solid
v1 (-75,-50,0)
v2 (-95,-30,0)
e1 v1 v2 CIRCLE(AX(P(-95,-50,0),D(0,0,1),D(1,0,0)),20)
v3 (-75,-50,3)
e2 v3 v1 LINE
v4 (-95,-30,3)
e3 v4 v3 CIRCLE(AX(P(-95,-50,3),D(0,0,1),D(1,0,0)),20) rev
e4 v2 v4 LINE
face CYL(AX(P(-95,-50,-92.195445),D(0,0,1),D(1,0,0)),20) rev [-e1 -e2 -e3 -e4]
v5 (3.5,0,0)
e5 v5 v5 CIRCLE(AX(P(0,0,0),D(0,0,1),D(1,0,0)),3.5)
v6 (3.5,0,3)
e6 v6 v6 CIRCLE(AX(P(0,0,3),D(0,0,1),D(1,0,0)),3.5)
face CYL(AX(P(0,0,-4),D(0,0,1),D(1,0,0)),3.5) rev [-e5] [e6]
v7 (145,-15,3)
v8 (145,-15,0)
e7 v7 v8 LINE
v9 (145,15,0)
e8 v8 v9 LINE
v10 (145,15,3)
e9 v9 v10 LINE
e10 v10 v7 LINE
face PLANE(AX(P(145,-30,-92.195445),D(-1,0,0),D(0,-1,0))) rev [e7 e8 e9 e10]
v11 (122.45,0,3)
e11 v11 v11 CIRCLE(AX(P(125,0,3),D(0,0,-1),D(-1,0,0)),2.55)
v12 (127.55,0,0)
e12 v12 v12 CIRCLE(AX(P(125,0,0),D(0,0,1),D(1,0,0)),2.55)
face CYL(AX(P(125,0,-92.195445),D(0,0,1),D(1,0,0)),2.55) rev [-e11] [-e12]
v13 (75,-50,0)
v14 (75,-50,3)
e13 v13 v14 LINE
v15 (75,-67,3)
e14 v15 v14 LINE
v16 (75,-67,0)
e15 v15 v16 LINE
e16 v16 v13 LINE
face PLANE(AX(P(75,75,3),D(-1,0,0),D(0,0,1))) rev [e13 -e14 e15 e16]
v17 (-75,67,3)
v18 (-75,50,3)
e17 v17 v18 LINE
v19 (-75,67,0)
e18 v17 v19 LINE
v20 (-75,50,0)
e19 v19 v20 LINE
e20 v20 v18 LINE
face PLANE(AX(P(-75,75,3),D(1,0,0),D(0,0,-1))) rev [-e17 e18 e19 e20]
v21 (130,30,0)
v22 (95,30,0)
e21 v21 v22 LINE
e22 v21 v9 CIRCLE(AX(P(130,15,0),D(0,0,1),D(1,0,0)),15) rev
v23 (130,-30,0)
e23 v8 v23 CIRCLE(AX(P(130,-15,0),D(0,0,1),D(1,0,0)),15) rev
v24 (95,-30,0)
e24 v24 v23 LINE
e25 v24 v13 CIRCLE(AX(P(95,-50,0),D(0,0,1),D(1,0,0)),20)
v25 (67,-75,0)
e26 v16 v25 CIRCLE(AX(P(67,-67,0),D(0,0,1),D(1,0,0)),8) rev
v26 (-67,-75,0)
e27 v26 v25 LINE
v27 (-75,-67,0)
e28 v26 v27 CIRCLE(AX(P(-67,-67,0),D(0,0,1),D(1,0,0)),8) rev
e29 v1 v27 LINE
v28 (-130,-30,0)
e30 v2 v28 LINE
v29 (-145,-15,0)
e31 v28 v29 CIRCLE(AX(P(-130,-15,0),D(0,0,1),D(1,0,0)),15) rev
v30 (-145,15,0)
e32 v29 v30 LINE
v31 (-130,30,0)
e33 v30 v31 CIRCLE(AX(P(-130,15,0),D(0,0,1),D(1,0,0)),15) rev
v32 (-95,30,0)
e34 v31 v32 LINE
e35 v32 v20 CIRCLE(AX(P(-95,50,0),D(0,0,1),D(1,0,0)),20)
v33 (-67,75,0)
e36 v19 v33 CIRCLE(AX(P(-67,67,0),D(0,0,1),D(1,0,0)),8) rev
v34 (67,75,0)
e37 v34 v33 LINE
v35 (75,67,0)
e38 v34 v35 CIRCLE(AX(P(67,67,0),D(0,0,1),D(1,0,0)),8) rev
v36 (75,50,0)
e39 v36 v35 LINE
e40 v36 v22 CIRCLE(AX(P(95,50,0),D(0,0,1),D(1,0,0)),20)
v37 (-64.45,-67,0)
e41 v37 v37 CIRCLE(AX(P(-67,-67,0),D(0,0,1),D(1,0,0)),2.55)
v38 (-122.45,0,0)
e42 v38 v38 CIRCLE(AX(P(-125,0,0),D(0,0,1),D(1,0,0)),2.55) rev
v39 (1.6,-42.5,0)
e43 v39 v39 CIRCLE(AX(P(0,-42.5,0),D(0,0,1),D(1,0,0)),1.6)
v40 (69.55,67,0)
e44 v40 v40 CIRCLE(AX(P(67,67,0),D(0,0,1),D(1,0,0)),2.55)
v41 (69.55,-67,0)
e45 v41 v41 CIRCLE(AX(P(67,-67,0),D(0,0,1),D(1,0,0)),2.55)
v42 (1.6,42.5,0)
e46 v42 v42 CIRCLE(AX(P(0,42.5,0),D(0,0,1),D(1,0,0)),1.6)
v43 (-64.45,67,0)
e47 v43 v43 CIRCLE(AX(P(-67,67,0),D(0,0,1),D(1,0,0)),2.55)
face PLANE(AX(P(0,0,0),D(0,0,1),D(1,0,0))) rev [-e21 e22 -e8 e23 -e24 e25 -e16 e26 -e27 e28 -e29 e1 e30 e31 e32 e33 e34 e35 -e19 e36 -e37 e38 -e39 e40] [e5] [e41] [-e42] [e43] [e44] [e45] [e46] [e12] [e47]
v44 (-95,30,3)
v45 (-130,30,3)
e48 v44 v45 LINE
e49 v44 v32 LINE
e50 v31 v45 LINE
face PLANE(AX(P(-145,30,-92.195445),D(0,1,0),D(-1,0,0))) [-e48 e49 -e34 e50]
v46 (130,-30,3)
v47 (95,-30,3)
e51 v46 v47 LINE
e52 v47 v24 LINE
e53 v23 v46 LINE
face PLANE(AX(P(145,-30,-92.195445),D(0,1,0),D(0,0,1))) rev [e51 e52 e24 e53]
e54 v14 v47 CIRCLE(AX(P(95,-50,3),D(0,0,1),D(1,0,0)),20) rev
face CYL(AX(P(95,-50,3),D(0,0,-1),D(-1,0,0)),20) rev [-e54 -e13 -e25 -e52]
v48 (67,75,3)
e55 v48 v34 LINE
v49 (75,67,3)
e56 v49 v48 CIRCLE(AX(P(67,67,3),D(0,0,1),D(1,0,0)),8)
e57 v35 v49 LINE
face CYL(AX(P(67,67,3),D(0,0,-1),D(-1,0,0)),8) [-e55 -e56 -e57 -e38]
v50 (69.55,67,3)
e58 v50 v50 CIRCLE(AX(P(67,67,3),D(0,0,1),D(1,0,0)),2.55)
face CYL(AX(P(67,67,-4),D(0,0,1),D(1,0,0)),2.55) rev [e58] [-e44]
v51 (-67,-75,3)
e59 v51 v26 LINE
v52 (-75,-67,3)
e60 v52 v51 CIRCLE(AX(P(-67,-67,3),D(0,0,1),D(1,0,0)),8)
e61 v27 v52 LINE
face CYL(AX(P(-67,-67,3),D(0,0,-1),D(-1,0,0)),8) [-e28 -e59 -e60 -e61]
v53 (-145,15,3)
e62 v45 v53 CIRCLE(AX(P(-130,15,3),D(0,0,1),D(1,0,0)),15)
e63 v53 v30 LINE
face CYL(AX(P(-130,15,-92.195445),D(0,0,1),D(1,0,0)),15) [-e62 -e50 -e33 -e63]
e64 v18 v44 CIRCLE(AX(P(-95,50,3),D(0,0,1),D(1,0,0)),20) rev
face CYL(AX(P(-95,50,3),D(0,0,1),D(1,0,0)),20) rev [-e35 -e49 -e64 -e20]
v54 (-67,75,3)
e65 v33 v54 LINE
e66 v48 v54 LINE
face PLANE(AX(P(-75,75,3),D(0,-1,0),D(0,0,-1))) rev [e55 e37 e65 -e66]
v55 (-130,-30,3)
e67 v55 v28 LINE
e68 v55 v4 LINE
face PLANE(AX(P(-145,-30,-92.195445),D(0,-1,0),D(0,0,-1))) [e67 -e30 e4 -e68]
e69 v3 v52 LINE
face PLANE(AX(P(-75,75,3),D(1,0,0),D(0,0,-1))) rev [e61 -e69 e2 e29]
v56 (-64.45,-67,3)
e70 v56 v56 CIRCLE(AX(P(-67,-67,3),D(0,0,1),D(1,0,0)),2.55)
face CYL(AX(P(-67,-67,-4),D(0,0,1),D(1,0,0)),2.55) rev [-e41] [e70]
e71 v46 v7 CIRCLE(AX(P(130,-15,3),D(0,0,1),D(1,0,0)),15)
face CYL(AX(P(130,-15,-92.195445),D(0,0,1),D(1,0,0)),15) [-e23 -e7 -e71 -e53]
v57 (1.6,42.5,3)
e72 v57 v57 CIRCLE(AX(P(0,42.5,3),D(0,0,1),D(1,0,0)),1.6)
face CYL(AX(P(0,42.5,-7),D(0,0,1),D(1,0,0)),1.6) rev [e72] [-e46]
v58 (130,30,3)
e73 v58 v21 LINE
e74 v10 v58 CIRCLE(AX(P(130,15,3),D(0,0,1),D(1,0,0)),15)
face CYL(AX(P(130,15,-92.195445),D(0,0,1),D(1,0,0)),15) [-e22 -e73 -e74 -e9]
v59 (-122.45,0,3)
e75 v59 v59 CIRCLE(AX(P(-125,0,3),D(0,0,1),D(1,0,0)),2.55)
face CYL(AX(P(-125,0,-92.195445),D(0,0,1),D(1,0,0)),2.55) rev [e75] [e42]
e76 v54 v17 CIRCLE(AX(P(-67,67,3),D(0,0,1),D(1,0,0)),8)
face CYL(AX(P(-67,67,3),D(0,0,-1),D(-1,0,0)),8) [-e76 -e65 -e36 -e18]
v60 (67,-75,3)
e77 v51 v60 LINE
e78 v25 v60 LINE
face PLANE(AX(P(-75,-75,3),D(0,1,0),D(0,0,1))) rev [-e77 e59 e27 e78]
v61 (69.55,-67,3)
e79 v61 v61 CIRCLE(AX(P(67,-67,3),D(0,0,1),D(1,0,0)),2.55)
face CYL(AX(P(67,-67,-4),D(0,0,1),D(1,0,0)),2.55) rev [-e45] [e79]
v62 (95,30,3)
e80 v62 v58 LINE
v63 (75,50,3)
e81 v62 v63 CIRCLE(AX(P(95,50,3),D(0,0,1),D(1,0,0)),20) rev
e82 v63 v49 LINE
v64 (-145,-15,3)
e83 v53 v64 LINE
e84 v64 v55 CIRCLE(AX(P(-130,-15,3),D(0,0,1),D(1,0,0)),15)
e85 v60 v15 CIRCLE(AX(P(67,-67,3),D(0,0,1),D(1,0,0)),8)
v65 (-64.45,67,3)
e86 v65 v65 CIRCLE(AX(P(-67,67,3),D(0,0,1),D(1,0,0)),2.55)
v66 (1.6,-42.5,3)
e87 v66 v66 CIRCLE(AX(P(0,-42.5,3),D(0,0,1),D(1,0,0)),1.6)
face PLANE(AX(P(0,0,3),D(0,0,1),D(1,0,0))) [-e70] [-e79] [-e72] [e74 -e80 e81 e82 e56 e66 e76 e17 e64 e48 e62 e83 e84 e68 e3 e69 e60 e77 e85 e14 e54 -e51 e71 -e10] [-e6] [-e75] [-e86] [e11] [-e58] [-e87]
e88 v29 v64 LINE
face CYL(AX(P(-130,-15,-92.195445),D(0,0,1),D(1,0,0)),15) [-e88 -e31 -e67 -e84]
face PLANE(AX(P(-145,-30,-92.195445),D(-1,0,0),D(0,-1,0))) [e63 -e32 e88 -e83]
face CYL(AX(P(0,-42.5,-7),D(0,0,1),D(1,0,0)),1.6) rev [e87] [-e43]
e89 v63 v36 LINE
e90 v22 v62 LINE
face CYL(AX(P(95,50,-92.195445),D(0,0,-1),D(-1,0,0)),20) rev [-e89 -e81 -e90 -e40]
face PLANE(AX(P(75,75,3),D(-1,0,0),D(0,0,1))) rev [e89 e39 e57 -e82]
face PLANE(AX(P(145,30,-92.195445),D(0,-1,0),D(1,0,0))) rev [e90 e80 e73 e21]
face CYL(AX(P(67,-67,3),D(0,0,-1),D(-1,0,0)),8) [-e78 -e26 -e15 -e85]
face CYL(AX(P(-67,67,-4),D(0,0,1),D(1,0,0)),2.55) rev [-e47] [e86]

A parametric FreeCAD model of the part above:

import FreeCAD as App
import Part
import Sketcher
from FreeCAD import Vector


def edges_at(feature, points):
    """Names of the edges that pass closest to the given points."""
    edges = feature.Shape.Edges
    near = lambda p: min(range(len(edges)), key=lambda i: edges[i].distToShape(Part.Vertex(*p))[0])
    return sorted({f"Edge{near(p) + 1}" for p in points})

doc = App.newDocument("Part")
body = doc.addObject("PartDesign::Body", "Body")

# Sketch on XY plane
sketch1 = doc.addObject("Sketcher::SketchObject", "Sketch")
body.addObject(sketch1)
sketch1.AttachmentSupport = (doc.XY_Plane, [""])
sketch1.MapMode = "FlatFace"
sketch1.addGeometry([
    Part.LineSegment(Vector(-75, 75, 0), Vector(-75, -75, 0)),
    Part.LineSegment(Vector(-75, -75, 0), Vector(75, -75, 0)),
    Part.LineSegment(Vector(75, -75, 0), Vector(75, 75, 0)),
    Part.LineSegment(Vector(75, 75, 0), Vector(-75, 75, 0)),
], False)
sketch1.addConstraint([
    Sketcher.Constraint("Coincident", 0, 2, 1, 1),
    Sketcher.Constraint("Coincident", 1, 2, 2, 1),
    Sketcher.Constraint("Coincident", 2, 2, 3, 1),
    Sketcher.Constraint("Coincident", 3, 2, 0, 1),
    Sketcher.Constraint("Vertical", 0),
    Sketcher.Constraint("Horizontal", 1),
    Sketcher.Constraint("Vertical", 2),
    Sketcher.Constraint("Horizontal", 3),
    Sketcher.Constraint("Symmetric", 0, 2, 2, 2, -1, 1),
    Sketcher.Constraint("Equal", 3, 0),
    Sketcher.Constraint("DistanceX", 1, 1, 1, 2, 150.0),
])
pad1 = doc.addObject("PartDesign::Pad", "Pad")
body.addObject(pad1)
pad1.Profile = sketch1
pad1.Length = 3

# Sketch on XY plane
sketch2 = doc.addObject("Sketcher::SketchObject", "Sketch001")
body.addObject(sketch2)
sketch2.AttachmentSupport = (doc.XY_Plane, [""])
sketch2.MapMode = "FlatFace"
sketch2.AttachmentOffset = App.Placement(Vector(0, 0, 3), App.Rotation())
sketch2.addGeometry([
    Part.Circle(Vector(-67, 67, 0), Vector(0, 0, 1), 2.5),  # 0
    Part.Circle(Vector(-67, -67, 0), Vector(0, 0, 1), 2.5),  # 1
    Part.Circle(Vector(67, -67, 0), Vector(0, 0, 1), 2.5),  # 2
    Part.Circle(Vector(67, 67, 0), Vector(0, 0, 1), 2.5),  # 3
    Part.Circle(Vector(0, 0, 0), Vector(0, 0, 1), 3.5),  # 4
], False)
sketch2.addConstraint([
    Sketcher.Constraint("Coincident", 4, 3, -1, 1),
    Sketcher.Constraint("Equal", 0, 1),
    Sketcher.Constraint("Equal", 1, 2),
    Sketcher.Constraint("Equal", 2, 3),
    Sketcher.Constraint("Symmetric", 0, 3, 2, 3, -1, 1),
    Sketcher.Constraint("Symmetric", 1, 3, 3, 3, -1, 1),
    Sketcher.Constraint("Symmetric", 1, 3, 2, 3, -2),
    Sketcher.Constraint("Diameter", 4, 7.0),
    Sketcher.Constraint("Diameter", 0, 5.1),
    Sketcher.Constraint("DistanceX", 0, 3, -1, 1, 67.0),
    Sketcher.Constraint("DistanceY", -1, 1, 0, 3, 67.0),
])
pocket1 = doc.addObject("PartDesign::Pocket", "Pocket")
body.addObject(pocket1)
pocket1.Profile = sketch2
pocket1.Length = 7
doc.recompute()

fillet = doc.addObject("PartDesign::Fillet", "Fillet")
body.addObject(fillet)
fillet.Base = (pocket1, edges_at(pocket1, [
    (75, -75, 1.5),
    (-75, -75, 1.5),
    (-75, 75, 1.5),
    (75, 75, 1.5),
]))
fillet.Radius = 8

# Sketch on XY plane
sketch3 = doc.addObject("Sketcher::SketchObject", "Sketch002")
body.addObject(sketch3)
sketch3.AttachmentSupport = (doc.XY_Plane, [""])
sketch3.MapMode = "FlatFace"
sketch3.AttachmentOffset = App.Placement(Vector(0, 0, 3), App.Rotation())
sketch3.addGeometry([
    Part.LineSegment(Vector(-145, 30, 0), Vector(-145, -30, 0)),  # 0
    Part.LineSegment(Vector(-145, -30, 0), Vector(-75, -30, 0)),  # 1
    Part.LineSegment(Vector(-75, -30, 0), Vector(-75, 30, 0)),  # 2
    Part.LineSegment(Vector(-75, 30, 0), Vector(-145, 30, 0)),  # 3
    Part.Circle(Vector(-125, 0, 0), Vector(0, 0, 1), 2.5),  # 4
], False)
sketch3.addConstraint([
    Sketcher.Constraint("Coincident", 0, 2, 1, 1),
    Sketcher.Constraint("Coincident", 1, 2, 2, 1),
    Sketcher.Constraint("Coincident", 2, 2, 3, 1),
    Sketcher.Constraint("Coincident", 3, 2, 0, 1),
    Sketcher.Constraint("Vertical", 0),
    Sketcher.Constraint("Horizontal", 1),
    Sketcher.Constraint("Vertical", 2),
    Sketcher.Constraint("Horizontal", 3),
    Sketcher.Constraint("PointOnObject", 4, 3, -1),
    Sketcher.Constraint("Diameter", 4, 5.1),
    Sketcher.Constraint("DistanceX", 1, 1, 1, 2, 70.0),
    Sketcher.Constraint("DistanceY", 0, 2, 0, 1, 60.0),
    Sketcher.Constraint("DistanceX", 4, 3, -1, 1, 125.0),
    Sketcher.Constraint("DistanceX", 0, 2, -1, 1, 145.0),
    Sketcher.Constraint("DistanceY", 0, 2, -1, 1, 30.0),
])
pad2 = doc.addObject("PartDesign::Pad", "Pad001")
body.addObject(pad2)
pad2.Profile = sketch3
pad2.Length = 3
pad2.Reversed = True
doc.recompute()

mirrored = doc.addObject("PartDesign::Mirrored", "Mirrored")
body.addObject(mirrored)
mirrored.Originals = [pad2]
mirrored.MirrorPlane = (doc.YZ_Plane, [""])
body.Tip = mirrored
doc.recompute()

fillet2 = doc.addObject("PartDesign::Fillet", "Fillet001")
body.addObject(fillet2)
fillet2.Base = (mirrored, edges_at(mirrored, [
    (-75, -30, 1.5),
    (-75, 30, 1.5),
    (75, -30, 1.5),
    (75, 30, 1.5),
]))
fillet2.Radius = 20
doc.recompute()

fillet3 = doc.addObject("PartDesign::Fillet", "Fillet002")
body.addObject(fillet3)
fillet3.Base = (fillet2, edges_at(fillet2, [
    (-145, 30, 1.5),
    (-145, -30, 1.5),
    (145, 30, 1.5),
    (145, -30, 1.5),
]))
fillet3.Radius = 15

# Sketch on XY plane
sketch4 = doc.addObject("Sketcher::SketchObject", "Sketch003")
body.addObject(sketch4)
sketch4.AttachmentSupport = (doc.XY_Plane, [""])
sketch4.MapMode = "FlatFace"
sketch4.AttachmentOffset = App.Placement(Vector(0, 0, 3), App.Rotation())
sketch4.addGeometry([
    Part.Circle(Vector(0, 42.5, 0), Vector(0, 0, 1), 1.6),
    Part.Circle(Vector(0, -42.5, 0), Vector(0, 0, 1), 1.6),
], False)
sketch4.addConstraint([
    Sketcher.Constraint("Equal", 0, 1),
    Sketcher.Constraint("Symmetric", 0, 3, 1, 3, -1, 1),
    Sketcher.Constraint("PointOnObject", 0, 3, -2),
    Sketcher.Constraint("Diameter", 0, 3.2),
    Sketcher.Constraint("DistanceY", 1, 3, 0, 3, 85.0),
])
pocket2 = doc.addObject("PartDesign::Pocket", "Pocket001")
body.addObject(pocket2)
pocket2.Profile = sketch4
pocket2.Length = 10

doc.recompute()
